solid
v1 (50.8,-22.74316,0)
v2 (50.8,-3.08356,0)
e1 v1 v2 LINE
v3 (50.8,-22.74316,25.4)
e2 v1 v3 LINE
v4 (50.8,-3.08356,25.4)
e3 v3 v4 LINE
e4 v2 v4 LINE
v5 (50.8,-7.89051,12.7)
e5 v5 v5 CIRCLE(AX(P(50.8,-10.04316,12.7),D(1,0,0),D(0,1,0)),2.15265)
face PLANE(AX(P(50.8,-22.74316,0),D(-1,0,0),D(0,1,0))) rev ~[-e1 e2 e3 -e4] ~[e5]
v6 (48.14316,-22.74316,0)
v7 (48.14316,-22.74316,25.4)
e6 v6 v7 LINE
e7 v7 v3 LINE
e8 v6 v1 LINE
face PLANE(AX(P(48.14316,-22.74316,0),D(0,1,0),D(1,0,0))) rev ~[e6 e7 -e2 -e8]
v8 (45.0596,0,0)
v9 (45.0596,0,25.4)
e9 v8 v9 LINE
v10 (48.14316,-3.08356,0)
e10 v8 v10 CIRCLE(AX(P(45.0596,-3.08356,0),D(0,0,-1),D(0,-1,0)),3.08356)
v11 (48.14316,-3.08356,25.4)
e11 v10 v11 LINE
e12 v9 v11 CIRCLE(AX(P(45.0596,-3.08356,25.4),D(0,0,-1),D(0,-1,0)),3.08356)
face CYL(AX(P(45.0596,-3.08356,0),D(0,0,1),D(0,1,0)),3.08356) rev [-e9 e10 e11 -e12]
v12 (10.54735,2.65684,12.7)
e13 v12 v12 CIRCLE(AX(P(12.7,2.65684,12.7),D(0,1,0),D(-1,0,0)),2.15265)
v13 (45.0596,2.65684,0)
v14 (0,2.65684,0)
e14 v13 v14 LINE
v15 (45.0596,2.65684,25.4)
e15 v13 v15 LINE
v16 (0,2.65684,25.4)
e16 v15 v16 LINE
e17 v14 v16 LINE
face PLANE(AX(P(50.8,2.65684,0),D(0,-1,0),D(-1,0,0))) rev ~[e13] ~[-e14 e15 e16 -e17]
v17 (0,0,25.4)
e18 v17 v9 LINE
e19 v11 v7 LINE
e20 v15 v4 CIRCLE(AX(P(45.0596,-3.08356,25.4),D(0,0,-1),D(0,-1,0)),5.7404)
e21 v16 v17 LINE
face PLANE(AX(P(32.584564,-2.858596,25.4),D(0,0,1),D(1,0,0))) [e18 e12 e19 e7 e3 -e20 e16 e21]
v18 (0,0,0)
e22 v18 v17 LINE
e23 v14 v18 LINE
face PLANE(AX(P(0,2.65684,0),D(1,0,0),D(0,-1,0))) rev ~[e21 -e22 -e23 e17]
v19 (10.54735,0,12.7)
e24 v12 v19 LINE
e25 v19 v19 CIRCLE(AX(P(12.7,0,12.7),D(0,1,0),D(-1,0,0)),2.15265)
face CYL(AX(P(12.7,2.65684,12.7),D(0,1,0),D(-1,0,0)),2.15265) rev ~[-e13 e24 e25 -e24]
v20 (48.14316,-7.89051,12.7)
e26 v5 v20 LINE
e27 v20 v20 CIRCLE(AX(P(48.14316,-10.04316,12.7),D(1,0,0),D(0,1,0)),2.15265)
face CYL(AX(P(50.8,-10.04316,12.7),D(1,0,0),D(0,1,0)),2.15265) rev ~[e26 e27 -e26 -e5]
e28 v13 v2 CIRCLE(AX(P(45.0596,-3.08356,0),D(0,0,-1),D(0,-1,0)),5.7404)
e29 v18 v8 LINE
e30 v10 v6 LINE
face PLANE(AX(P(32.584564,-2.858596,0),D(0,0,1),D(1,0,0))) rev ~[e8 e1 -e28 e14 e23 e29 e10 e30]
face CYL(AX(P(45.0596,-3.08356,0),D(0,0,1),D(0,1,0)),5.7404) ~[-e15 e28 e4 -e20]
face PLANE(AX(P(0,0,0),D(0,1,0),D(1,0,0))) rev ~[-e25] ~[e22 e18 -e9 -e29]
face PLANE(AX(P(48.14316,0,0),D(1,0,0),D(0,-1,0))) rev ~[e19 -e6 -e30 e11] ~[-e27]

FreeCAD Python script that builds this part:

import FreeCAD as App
import Part
import Sketcher
Q = App.Units.Quantity


def edges_at(feature, points):
    """Names of the edges that pass closest to the given points."""
    edges = feature.Shape.Edges
    near = lambda p: min(range(len(edges)), key=lambda i: edges[i].distToShape(Part.Vertex(*p))[0])
    return sorted({f"Edge{near(p) + 1}" for p in points})

doc = App.newDocument("Part")
body = doc.addObject("PartDesign::Body", "Body")

sketch1 = body.newObject("Sketcher::SketchObject", "Sketch")
sketch1.AttachmentSupport = (doc.getObject("XY_Plane"), [""])
sketch1.MapMode = "FlatFace"
sketch1.addGeometry([
    Part.LineSegment(App.Vector(0, 2.7, 0), App.Vector(0, 0, 0)),
    Part.LineSegment(App.Vector(0, 0, 0), App.Vector(48.1, 0, 0)),
    Part.LineSegment(App.Vector(48.1, 0, 0), App.Vector(48.1, -22.7, 0)),
    Part.LineSegment(App.Vector(48.1, -22.7, 0), App.Vector(50.8, -22.7, 0)),
    Part.LineSegment(App.Vector(50.8, -22.7, 0), App.Vector(50.8, 2.7, 0)),
    Part.LineSegment(App.Vector(50.8, 2.7, 0), App.Vector(0, 2.7, 0)),
], False)
sketch1.addConstraint([
    Sketcher.Constraint("Coincident", 0, 2, 1, 1),
    Sketcher.Constraint("Coincident", 1, 2, 2, 1),
    Sketcher.Constraint("Coincident", 2, 2, 3, 1),
    Sketcher.Constraint("Coincident", 3, 2, 4, 1),
    Sketcher.Constraint("Coincident", 4, 2, 5, 1),
    Sketcher.Constraint("Coincident", 5, 2, 0, 1),
    Sketcher.Constraint("Vertical", 0),
    Sketcher.Constraint("Horizontal", 1),
    Sketcher.Constraint("Vertical", 2),
    Sketcher.Constraint("Horizontal", 3),
    Sketcher.Constraint("Vertical", 4),
    Sketcher.Constraint("Horizontal", 5),
    Sketcher.Constraint("Coincident", 0, 2, -1, 1),
    Sketcher.Constraint("Equal", 3, 0),
    Sketcher.Constraint("DistanceX", 5, 2, 5, 1, Q("2 in")),
    Sketcher.Constraint("DistanceY", 4, 1, 4, 2, Q("1 in")),
    Sketcher.Constraint("DistanceX", 1, 1, 1, 2, Q("1.8954 in")),
])
pad1 = body.newObject("PartDesign::Pad", "Pad")
pad1.Profile = sketch1
pad1.Length = Q("1 in")

sketch2 = body.newObject("Sketcher::SketchObject", "Sketch001")
sketch2.AttachmentSupport = (doc.getObject("XZ_Plane"), [""])
sketch2.MapMode = "FlatFace"
sketch2.AttachmentOffset = App.Placement(App.Vector(0, 0, -0.1046 * 25.4), App.Rotation())
sketch2.addGeometry(Part.Circle(App.Vector(12.7, 12.7, 0), App.Vector(0, 0, 1), 2.2), False)
sketch2.addConstraint([
    Sketcher.Constraint("Diameter", 0, Q("0.1695 in")),
    Sketcher.Constraint("DistanceX", -1, 1, 0, 3, Q("0.5 in")),
    Sketcher.Constraint("DistanceY", -1, 1, 0, 3, Q("0.5 in")),
])
pocket1 = body.newObject("PartDesign::Pocket", "Pocket")
pocket1.Profile = sketch2
pocket1.Type = "ThroughAll"
pocket1.Reversed = True

sketch3 = body.newObject("Sketcher::SketchObject", "Sketch002")
sketch3.AttachmentSupport = (doc.getObject("YZ_Plane"), [""])
sketch3.MapMode = "FlatFace"
sketch3.AttachmentOffset = App.Placement(App.Vector(0, 0, 2 * 25.4), App.Rotation())
sketch3.addGeometry(Part.Circle(App.Vector(-10, 12.7, 0), App.Vector(0, 0, 1), 2.2), False)
sketch3.addConstraint([
    Sketcher.Constraint("Diameter", 0, Q("0.1695 in")),
    Sketcher.Constraint("DistanceY", -1, 1, 0, 3, Q("0.5 in")),
    Sketcher.Constraint("DistanceX", 0, 3, -1, 1, Q("0.3954 in")),
])
pocket2 = body.newObject("PartDesign::Pocket", "Pocket001")
pocket2.Profile = sketch3
pocket2.Type = "ThroughAll"
doc.recompute()

fillet = body.newObject("PartDesign::Fillet", "Fillet")
fillet.Base = (pocket2, edges_at(pocket2, [(48.143, 0, 12.7)]))
fillet.Radius = Q("0.1214 in")
doc.recompute()

fillet2 = body.newObject("PartDesign::Fillet", "Fillet001")
fillet2.Base = (fillet, edges_at(fillet, [(50.8, 2.657, 12.7)]))
fillet2.Radius = Q("0.226 in")

doc.recompute()
